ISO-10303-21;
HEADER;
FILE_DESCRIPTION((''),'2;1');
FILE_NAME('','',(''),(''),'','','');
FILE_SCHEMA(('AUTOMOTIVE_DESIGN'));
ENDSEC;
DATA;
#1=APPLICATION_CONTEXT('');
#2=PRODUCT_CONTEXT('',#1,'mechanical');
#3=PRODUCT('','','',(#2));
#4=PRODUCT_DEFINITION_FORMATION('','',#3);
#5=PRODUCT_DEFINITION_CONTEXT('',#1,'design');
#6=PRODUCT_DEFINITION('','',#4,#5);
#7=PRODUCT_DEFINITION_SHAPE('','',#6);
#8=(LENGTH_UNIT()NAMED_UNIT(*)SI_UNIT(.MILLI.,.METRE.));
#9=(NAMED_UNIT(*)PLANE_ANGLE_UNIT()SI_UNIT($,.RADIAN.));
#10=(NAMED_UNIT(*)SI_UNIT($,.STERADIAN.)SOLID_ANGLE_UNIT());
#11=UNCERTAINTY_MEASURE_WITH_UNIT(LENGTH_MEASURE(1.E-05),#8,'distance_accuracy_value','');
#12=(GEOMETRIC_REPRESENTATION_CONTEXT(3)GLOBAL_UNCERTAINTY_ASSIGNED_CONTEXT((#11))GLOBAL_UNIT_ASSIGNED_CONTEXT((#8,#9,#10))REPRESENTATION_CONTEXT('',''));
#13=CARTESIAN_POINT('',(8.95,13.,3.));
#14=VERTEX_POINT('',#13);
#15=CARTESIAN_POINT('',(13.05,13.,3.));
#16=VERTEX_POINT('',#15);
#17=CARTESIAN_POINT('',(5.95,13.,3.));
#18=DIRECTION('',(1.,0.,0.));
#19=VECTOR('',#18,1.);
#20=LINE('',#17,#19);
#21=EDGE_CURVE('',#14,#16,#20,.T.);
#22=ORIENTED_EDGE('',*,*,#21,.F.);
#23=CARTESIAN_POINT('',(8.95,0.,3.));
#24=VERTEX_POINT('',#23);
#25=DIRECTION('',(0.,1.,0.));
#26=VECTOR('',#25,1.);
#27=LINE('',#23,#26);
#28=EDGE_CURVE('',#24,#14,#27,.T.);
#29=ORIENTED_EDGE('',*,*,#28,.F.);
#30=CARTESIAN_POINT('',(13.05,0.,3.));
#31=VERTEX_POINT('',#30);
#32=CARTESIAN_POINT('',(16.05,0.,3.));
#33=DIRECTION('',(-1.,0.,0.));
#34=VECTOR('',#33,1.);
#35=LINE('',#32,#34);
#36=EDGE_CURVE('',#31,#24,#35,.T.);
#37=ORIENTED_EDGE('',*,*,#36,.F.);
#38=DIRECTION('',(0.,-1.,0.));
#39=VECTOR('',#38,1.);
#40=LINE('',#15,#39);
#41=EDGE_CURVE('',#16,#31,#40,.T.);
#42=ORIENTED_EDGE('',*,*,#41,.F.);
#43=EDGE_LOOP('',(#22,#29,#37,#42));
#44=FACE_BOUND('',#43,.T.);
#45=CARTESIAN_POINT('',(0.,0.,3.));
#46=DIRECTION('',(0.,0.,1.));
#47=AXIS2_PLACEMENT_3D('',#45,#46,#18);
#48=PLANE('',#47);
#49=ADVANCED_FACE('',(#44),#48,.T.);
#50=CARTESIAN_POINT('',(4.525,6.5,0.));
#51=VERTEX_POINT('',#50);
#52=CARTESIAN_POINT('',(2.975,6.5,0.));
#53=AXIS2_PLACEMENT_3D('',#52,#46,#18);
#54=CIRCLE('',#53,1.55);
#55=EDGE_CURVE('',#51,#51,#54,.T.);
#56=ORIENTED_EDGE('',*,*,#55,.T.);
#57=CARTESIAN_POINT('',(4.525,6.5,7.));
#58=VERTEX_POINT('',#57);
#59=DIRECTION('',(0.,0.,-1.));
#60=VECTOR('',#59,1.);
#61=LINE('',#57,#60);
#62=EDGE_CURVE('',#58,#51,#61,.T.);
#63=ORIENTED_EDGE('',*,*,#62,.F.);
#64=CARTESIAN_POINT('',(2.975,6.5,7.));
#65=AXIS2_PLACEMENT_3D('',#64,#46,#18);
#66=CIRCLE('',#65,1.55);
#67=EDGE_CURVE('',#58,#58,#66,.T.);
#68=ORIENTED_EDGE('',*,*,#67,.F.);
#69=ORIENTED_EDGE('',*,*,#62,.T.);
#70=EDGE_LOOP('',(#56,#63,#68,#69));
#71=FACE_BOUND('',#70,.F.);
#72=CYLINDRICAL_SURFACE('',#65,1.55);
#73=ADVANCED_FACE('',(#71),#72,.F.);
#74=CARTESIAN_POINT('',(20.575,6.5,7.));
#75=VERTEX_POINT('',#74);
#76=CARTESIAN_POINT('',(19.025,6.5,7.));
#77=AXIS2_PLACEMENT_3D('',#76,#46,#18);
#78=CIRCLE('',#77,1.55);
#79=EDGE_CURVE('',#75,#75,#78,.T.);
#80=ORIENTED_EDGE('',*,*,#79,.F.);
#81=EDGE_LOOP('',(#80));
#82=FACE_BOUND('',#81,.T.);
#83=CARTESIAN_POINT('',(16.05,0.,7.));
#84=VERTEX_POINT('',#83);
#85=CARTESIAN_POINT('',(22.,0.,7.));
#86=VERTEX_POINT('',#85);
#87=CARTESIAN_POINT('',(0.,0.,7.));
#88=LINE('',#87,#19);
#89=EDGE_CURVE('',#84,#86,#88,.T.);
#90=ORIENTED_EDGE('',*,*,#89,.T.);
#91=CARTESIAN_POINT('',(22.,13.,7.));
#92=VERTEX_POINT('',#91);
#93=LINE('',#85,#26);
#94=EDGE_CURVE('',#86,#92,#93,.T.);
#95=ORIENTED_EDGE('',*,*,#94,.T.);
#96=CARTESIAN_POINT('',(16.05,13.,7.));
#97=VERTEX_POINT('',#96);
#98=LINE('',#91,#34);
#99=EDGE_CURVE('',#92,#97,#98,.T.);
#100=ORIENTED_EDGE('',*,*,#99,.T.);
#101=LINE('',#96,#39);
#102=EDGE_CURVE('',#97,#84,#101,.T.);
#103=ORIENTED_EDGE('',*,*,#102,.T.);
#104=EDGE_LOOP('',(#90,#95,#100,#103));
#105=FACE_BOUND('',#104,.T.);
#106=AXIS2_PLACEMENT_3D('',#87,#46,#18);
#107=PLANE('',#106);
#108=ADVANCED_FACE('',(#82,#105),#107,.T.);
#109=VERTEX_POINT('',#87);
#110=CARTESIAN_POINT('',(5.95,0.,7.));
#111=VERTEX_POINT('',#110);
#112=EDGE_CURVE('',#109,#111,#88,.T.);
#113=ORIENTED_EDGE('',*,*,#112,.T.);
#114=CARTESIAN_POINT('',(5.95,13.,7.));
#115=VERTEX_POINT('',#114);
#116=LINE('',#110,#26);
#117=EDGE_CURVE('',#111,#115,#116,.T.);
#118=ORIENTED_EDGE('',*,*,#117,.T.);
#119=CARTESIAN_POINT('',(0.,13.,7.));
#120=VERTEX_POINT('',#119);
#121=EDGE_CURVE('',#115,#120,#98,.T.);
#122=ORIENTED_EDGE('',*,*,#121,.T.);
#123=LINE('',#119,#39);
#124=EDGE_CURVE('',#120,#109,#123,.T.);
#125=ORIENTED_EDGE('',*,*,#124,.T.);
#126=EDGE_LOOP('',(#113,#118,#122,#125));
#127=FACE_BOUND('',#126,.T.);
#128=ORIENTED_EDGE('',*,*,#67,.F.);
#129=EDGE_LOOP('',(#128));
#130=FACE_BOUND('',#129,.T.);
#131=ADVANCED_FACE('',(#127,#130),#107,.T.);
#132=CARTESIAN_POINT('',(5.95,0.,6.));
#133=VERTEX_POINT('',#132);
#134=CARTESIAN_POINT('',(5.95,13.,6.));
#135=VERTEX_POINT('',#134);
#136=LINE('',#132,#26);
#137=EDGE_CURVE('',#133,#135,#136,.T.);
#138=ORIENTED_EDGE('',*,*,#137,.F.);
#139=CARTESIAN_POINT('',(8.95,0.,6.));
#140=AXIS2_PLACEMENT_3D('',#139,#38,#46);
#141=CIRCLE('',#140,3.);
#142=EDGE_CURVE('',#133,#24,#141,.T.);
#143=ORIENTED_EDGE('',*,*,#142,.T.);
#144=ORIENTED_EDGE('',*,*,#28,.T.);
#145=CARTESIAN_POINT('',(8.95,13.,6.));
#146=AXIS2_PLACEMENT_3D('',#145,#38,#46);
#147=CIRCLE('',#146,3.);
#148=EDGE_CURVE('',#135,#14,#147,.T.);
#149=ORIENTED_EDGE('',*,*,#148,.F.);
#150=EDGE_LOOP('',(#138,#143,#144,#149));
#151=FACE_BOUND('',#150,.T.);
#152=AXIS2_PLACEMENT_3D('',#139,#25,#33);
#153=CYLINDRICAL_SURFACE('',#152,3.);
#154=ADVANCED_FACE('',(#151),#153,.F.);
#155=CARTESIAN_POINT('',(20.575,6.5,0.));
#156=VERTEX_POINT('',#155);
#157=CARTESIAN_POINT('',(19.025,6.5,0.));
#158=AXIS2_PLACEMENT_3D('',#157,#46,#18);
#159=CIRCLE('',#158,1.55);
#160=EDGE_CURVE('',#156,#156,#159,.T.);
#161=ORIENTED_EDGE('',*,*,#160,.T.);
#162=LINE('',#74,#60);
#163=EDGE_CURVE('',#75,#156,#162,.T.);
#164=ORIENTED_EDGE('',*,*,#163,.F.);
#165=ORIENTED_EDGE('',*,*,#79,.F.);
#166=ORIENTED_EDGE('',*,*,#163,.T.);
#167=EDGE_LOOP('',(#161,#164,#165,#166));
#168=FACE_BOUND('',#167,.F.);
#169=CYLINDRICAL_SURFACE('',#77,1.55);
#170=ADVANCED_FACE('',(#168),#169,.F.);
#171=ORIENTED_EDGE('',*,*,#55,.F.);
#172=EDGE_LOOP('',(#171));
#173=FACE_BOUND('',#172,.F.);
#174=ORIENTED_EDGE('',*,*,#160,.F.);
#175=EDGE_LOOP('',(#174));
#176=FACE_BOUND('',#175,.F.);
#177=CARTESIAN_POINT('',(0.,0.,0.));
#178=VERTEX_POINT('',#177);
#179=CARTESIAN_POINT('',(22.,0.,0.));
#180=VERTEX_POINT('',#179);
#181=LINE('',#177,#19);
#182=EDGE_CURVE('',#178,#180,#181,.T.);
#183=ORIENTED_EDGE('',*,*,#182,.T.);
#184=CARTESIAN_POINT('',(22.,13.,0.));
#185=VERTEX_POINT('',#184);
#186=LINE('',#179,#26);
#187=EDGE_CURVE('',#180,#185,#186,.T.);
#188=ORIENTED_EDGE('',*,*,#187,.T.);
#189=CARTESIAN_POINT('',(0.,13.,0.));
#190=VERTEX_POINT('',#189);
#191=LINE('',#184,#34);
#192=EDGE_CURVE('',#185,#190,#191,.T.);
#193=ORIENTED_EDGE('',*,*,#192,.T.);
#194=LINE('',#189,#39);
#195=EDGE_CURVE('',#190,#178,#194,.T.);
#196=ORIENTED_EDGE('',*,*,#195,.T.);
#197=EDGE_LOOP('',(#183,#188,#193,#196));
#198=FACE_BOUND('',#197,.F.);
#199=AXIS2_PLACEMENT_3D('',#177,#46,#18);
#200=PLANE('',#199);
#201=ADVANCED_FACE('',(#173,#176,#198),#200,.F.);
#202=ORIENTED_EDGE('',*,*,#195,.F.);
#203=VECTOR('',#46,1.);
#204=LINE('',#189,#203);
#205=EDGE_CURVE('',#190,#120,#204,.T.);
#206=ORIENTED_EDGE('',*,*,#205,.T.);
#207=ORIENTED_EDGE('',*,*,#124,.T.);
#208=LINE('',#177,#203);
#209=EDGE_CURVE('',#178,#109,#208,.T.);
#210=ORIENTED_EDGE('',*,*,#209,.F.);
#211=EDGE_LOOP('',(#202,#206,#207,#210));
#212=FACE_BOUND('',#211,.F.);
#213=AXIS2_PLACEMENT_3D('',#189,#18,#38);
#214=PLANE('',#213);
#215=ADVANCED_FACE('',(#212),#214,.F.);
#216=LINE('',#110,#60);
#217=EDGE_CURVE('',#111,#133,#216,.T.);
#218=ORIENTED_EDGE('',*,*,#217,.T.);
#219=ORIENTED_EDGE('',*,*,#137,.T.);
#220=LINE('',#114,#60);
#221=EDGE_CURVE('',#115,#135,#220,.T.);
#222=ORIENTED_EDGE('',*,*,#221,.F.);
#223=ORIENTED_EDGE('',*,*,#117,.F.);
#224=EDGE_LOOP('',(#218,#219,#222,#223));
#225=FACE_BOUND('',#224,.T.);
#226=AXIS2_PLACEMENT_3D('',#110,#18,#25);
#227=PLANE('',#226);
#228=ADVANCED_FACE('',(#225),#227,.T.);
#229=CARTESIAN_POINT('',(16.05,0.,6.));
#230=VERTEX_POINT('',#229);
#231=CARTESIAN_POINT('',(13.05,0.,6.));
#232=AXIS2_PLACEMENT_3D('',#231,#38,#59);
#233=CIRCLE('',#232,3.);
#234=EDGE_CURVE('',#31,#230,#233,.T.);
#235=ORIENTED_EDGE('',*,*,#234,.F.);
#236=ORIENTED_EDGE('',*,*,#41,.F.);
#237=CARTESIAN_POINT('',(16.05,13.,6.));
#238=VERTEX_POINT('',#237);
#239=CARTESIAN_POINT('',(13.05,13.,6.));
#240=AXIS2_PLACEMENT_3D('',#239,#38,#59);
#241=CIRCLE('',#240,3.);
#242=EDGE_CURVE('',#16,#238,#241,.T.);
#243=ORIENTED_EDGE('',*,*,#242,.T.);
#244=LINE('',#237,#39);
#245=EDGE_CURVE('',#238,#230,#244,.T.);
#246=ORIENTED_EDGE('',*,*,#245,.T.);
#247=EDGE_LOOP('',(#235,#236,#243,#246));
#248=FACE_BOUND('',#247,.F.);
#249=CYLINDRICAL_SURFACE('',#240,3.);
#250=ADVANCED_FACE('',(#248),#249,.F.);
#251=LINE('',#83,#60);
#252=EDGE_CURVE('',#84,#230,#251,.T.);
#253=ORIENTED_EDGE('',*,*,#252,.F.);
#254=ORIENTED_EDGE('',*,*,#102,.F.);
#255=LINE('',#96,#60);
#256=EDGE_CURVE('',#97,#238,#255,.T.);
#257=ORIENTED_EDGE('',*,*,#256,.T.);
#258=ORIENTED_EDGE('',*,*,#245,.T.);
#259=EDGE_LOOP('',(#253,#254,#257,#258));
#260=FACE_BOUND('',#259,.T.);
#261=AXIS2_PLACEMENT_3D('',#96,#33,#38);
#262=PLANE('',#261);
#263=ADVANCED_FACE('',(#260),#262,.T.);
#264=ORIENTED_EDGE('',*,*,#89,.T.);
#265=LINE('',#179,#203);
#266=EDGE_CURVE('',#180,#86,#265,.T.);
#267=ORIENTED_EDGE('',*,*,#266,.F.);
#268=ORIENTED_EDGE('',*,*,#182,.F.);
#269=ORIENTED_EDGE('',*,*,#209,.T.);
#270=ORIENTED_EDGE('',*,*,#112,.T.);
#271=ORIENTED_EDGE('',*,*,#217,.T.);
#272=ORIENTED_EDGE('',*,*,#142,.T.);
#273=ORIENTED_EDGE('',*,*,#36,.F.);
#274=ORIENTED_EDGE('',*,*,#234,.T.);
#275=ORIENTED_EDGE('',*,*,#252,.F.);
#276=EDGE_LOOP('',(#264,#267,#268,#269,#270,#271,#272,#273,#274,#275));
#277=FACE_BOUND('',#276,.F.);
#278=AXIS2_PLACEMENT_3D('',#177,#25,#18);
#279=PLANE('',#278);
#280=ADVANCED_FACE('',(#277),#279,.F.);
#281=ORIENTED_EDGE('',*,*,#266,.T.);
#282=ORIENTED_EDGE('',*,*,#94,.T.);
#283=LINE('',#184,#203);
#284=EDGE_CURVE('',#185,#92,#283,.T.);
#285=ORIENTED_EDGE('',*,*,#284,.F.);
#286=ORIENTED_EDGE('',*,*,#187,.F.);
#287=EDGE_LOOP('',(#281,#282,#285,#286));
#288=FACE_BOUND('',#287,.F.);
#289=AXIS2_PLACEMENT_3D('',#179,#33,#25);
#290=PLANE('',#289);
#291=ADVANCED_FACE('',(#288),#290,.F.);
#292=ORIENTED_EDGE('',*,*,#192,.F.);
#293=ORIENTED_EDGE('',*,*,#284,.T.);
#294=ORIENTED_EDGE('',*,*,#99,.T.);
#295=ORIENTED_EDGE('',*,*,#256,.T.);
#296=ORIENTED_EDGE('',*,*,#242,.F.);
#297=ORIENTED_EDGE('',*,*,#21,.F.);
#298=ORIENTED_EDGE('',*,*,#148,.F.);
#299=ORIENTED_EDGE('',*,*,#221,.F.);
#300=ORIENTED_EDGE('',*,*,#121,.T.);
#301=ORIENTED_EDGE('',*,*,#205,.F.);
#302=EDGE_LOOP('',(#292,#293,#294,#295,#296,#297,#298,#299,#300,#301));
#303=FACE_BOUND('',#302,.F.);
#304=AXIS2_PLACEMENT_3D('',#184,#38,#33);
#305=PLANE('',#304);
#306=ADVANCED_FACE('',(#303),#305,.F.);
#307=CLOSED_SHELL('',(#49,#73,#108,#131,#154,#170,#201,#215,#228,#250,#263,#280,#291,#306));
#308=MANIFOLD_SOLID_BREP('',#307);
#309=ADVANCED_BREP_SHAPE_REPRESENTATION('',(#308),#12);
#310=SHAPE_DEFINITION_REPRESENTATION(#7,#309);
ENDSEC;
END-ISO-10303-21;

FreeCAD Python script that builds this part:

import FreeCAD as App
import Part
import Sketcher
Q = App.Units.Quantity


def edges_at(feature, points):
    """Names of the edges that pass closest to the given points."""
    edges = feature.Shape.Edges
    near = lambda p: min(range(len(edges)), key=lambda i: edges[i].distToShape(Part.Vertex(*p))[0])
    return sorted({f"Edge{near(p) + 1}" for p in points})

doc = App.newDocument("Part")
body = doc.addObject("PartDesign::Body", "Body")

sketch1 = body.newObject("Sketcher::SketchObject", "Sketch")
sketch1.AttachmentSupport = (doc.getObject("XY_Plane"), [""])
sketch1.MapMode = "FlatFace"
sketch1.addGeometry(Part.LineSegment(App.Vector(0, 13, 0), App.Vector(0, 0, 0)), False)
sketch1.addGeometry(Part.LineSegment(App.Vector(0, 0, 0), App.Vector(22, 0, 0)), False)
sketch1.addGeometry(Part.LineSegment(App.Vector(22, 0, 0), App.Vector(22, 13, 0)), False)
sketch1.addGeometry(Part.LineSegment(App.Vector(22, 13, 0), App.Vector(0, 13, 0)), False)
sketch1.addConstraint(Sketcher.Constraint("Coincident", 0, 2, 1, 1))
sketch1.addConstraint(Sketcher.Constraint("Coincident", 1, 2, 2, 1))
sketch1.addConstraint(Sketcher.Constraint("Coincident", 2, 2, 3, 1))
sketch1.addConstraint(Sketcher.Constraint("Coincident", 3, 2, 0, 1))
sketch1.addConstraint(Sketcher.Constraint("Vertical", 0))
sketch1.addConstraint(Sketcher.Constraint("Horizontal", 1))
sketch1.addConstraint(Sketcher.Constraint("Vertical", 2))
sketch1.addConstraint(Sketcher.Constraint("Horizontal", 3))
sketch1.addConstraint(Sketcher.Constraint("Coincident", 0, 2, -1, 1))
sketch1.addConstraint(Sketcher.Constraint("DistanceX", 1, 1, 1, 2, Q("22 mm")))
sketch1.addConstraint(Sketcher.Constraint("DistanceY", 0, 2, 0, 1, Q("13 mm")))
pad1 = body.newObject("PartDesign::Pad", "Pad")
pad1.Profile = sketch1
pad1.Length = 7

sketch2 = body.newObject("Sketcher::SketchObject", "Sketch001")
sketch2.AttachmentSupport = (doc.getObject("XY_Plane"), [""])
sketch2.MapMode = "FlatFace"
sketch2.AttachmentOffset = App.Placement(App.Vector(0, 0, 7), App.Rotation())
sketch2.addGeometry(Part.LineSegment(App.Vector(6, 0, 0), App.Vector(16, 0, 0)), False)
sketch2.addGeometry(Part.LineSegment(App.Vector(16, 0, 0), App.Vector(16, 13, 0)), False)
sketch2.addGeometry(Part.LineSegment(App.Vector(16, 13, 0), App.Vector(6, 13, 0)), False)
sketch2.addGeometry(Part.LineSegment(App.Vector(6, 13, 0), App.Vector(6, 0, 0)), False)
sketch2.addConstraint(Sketcher.Constraint("Coincident", 0, 2, 1, 1))
sketch2.addConstraint(Sketcher.Constraint("Coincident", 1, 2, 2, 1))
sketch2.addConstraint(Sketcher.Constraint("Coincident", 2, 2, 3, 1))
sketch2.addConstraint(Sketcher.Constraint("Coincident", 3, 2, 0, 1))
sketch2.addConstraint(Sketcher.Constraint("Horizontal", 0))
sketch2.addConstraint(Sketcher.Constraint("Vertical", 1))
sketch2.addConstraint(Sketcher.Constraint("Horizontal", 2))
sketch2.addConstraint(Sketcher.Constraint("Vertical", 3))
sketch2.addConstraint(Sketcher.Constraint("PointOnObject", 0, 2, -1))
sketch2.addConstraint(Sketcher.Constraint("DistanceY", 1, 1, 1, 2, Q("13 mm")))
sketch2.addConstraint(Sketcher.Constraint("DistanceX", -1, 1, 2, 2, Q("5.95 mm")))
sketch2.addConstraint(Sketcher.Constraint("DistanceX", 0, 1, 0, 2, Q("10.1 mm")))
pocket1 = body.newObject("PartDesign::Pocket", "Pocket")
pocket1.Profile = sketch2
pocket1.Length = 4
doc.recompute()

fillet = body.newObject("PartDesign::Fillet", "Fillet")
fillet.Base = (pocket1, edges_at(pocket1, [(16.05, 6.5, 3), (5.95, 6.5, 3)]))
fillet.Radius = 3

sketch3 = body.newObject("Sketcher::SketchObject", "Sketch002")
sketch3.AttachmentSupport = (doc.getObject("XY_Plane"), [""])
sketch3.MapMode = "FlatFace"
sketch3.AttachmentOffset = App.Placement(App.Vector(0, 0, 7), App.Rotation())
sketch3.addGeometry(Part.Circle(App.Vector(3, 6.5, 0), App.Vector(0, 0, 1), 1.6), False)
sketch3.addGeometry(Part.Circle(App.Vector(19, 6.5, 0), App.Vector(0, 0, 1), 1.6), False)
sketch3.addConstraint(Sketcher.Constraint("Equal", 0, 1))
sketch3.addConstraint(Sketcher.Constraint("Horizontal", 0, 3, 1, 3))
sketch3.addConstraint(Sketcher.Constraint("Diameter", 0, Q("3.1 mm")))
sketch3.addConstraint(Sketcher.Constraint("DistanceX", -1, 1, 0, 3, Q("2.975 mm")))
sketch3.addConstraint(Sketcher.Constraint("DistanceY", -1, 1, 0, 3, Q("6.5 mm")))
sketch3.addConstraint(Sketcher.Constraint("DistanceX", 0, 3, 1, 3, Q("16.05 mm")))
pocket2 = body.newObject("PartDesign::Pocket", "Pocket001")
pocket2.Profile = sketch3
pocket2.Length = 7

doc.recompute()
